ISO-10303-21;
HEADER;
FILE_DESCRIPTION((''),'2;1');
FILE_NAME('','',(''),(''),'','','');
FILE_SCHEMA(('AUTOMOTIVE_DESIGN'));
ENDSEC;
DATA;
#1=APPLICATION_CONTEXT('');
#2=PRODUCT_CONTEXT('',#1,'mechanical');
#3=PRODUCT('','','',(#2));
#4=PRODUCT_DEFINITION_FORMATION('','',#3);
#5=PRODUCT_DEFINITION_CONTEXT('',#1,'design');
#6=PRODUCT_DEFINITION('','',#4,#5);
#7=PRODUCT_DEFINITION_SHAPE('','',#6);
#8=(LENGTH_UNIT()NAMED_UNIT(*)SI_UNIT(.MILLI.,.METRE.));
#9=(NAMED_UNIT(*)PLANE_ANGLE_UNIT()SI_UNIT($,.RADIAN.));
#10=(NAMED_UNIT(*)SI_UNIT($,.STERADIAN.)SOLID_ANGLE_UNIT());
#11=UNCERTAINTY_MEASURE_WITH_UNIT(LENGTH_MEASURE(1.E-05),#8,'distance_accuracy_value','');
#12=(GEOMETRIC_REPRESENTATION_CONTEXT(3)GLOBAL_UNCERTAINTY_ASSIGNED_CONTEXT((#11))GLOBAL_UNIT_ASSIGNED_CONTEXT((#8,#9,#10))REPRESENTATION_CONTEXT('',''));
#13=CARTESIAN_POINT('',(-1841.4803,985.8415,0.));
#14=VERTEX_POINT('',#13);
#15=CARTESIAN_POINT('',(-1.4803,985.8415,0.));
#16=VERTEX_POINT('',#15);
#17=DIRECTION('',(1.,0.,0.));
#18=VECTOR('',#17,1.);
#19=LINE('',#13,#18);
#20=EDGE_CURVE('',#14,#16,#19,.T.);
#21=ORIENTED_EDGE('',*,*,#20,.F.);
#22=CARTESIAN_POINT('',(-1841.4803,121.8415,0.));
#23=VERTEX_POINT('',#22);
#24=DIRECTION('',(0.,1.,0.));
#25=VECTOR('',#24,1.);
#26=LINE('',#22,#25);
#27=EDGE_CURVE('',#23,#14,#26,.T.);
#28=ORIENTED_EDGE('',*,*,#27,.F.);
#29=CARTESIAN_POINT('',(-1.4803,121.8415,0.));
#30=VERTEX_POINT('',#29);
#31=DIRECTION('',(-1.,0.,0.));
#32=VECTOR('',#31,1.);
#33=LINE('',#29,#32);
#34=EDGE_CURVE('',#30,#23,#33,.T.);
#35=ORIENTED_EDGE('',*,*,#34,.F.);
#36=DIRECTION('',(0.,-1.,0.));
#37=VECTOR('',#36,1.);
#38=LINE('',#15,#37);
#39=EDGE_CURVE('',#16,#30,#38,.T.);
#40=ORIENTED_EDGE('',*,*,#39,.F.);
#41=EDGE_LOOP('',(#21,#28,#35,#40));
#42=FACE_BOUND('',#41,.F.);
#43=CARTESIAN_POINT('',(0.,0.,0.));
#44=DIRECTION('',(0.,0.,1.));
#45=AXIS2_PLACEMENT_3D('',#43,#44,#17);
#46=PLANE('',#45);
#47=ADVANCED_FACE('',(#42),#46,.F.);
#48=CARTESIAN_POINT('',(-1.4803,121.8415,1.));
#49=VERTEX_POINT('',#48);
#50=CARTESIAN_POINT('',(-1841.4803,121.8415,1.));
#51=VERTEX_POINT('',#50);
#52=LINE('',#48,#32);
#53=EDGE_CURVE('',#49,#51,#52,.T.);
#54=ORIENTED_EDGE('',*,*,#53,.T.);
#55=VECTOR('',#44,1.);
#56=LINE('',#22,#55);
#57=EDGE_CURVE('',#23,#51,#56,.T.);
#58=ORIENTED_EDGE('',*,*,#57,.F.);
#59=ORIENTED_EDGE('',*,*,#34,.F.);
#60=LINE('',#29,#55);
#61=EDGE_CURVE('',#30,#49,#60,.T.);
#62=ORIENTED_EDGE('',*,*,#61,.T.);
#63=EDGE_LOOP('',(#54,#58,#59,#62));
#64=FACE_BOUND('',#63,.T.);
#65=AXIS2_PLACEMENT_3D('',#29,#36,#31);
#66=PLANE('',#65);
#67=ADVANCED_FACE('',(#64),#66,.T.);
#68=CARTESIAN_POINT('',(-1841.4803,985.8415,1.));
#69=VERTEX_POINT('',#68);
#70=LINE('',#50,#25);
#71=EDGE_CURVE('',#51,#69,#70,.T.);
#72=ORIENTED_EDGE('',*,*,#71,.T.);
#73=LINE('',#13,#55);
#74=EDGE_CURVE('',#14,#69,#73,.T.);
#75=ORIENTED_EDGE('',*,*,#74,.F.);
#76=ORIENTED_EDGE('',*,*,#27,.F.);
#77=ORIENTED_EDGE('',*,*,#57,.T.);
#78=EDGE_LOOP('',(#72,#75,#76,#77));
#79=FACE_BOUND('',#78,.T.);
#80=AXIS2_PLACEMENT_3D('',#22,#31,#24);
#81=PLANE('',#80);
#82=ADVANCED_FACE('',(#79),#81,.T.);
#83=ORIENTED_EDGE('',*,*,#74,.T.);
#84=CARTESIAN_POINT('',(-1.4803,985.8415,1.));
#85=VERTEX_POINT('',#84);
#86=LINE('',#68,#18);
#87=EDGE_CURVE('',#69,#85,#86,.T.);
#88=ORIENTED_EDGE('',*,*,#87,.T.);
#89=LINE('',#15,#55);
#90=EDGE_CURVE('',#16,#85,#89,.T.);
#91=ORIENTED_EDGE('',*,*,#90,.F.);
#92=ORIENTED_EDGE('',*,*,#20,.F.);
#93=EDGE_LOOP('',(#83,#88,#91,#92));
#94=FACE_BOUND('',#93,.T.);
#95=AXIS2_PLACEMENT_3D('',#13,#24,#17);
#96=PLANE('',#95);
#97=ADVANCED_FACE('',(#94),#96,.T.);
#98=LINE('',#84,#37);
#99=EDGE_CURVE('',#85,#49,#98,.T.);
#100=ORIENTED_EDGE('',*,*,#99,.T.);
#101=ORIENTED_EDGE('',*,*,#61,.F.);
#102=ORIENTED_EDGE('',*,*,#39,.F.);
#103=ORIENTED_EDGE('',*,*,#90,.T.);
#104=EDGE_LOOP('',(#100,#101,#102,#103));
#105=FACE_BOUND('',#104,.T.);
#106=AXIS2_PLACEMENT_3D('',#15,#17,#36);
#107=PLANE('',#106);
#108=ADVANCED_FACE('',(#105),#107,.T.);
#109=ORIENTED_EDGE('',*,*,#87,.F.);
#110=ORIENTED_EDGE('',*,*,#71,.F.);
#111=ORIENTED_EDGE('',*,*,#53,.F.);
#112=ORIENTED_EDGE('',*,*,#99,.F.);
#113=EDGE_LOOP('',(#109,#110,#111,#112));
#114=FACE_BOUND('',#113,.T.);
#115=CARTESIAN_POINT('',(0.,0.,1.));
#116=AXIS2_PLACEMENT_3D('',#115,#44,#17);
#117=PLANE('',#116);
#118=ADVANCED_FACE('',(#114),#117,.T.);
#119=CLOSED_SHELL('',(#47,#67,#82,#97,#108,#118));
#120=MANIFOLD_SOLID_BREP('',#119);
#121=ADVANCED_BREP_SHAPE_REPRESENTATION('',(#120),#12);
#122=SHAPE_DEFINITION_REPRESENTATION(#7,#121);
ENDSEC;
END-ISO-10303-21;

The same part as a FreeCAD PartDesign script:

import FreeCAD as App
import Part
import Sketcher
from FreeCAD import Vector

doc = App.newDocument("Part")
body = doc.addObject("PartDesign::Body", "Body")

# Sketch on XY plane
sketch1 = body.newObject("Sketcher::SketchObject", "Sketch")
sketch1.AttachmentSupport = (doc.getObject("XY_Plane"), [""])
sketch1.MapMode = "FlatFace"
sketch1.addGeometry([
    Part.LineSegment(Vector(-1, 986, 0), Vector(-1841, 986, 0)),
    Part.LineSegment(Vector(-1841, 986, 0), Vector(-1841, 122, 0)),
    Part.LineSegment(Vector(-1841, 122, 0), Vector(-1, 122, 0)),
    Part.LineSegment(Vector(-1, 122, 0), Vector(-1, 986, 0)),
], False)
sketch1.addConstraint([
    Sketcher.Constraint("Coincident", 0, 2, 1, 1),
    Sketcher.Constraint("Coincident", 1, 2, 2, 1),
    Sketcher.Constraint("Coincident", 2, 2, 3, 1),
    Sketcher.Constraint("Coincident", 3, 2, 0, 1),
    Sketcher.Constraint("Horizontal", 0),
    Sketcher.Constraint("Vertical", 1),
    Sketcher.Constraint("Horizontal", 2),
    Sketcher.Constraint("Vertical", 3),
    Sketcher.Constraint("DistanceX", 0, 2, 0, 1, 1840.0),
    Sketcher.Constraint("DistanceY", 1, 2, 1, 1, 864.0),
    Sketcher.Constraint("DistanceX", 0, 2, -1, 1, 1841.4803),
    Sketcher.Constraint("DistanceY", -1, 1, 0, 2, 985.8415),
])
pad1 = body.newObject("PartDesign::Pad", "Pad")
pad1.Profile = sketch1
pad1.Length = 1

doc.recompute()
